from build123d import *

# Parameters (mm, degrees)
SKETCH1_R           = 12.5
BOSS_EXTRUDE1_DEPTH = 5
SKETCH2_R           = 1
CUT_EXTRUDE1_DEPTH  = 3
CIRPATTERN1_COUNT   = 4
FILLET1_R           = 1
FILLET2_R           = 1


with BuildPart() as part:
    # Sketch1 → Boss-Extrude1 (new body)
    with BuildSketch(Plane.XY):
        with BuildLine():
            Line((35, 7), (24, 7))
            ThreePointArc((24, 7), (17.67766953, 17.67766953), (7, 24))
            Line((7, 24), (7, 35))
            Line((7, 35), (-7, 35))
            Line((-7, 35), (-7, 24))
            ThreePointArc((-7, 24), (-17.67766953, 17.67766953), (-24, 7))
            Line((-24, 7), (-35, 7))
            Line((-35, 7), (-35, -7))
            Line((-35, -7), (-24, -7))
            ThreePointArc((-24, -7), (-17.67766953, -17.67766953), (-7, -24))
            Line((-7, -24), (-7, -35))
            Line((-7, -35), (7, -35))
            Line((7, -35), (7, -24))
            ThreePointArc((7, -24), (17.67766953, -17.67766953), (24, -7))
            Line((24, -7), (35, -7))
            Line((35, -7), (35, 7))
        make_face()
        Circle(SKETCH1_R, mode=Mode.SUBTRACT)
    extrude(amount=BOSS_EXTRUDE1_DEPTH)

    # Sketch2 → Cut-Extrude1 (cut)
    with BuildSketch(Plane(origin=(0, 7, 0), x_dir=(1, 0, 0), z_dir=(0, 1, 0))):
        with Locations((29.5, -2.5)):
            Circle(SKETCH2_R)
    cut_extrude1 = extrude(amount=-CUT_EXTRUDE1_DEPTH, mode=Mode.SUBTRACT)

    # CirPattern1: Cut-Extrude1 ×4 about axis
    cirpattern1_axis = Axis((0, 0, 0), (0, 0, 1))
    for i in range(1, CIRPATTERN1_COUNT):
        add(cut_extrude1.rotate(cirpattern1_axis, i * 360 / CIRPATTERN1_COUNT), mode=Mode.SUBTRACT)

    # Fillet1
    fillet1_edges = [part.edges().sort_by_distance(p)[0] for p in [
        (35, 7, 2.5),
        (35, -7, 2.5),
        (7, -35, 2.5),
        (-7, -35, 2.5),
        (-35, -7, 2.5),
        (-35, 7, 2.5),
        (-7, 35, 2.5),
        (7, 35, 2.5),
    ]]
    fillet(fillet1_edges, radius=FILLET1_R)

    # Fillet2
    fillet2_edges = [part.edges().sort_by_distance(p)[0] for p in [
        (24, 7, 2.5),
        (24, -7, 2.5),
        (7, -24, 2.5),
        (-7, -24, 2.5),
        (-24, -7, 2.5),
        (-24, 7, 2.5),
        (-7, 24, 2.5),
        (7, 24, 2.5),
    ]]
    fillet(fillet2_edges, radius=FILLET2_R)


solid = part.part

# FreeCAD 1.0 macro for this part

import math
import FreeCAD as App
import Part
import Sketcher

V = App.Vector
Q = App.Units.Quantity


def edges_at(feature, points):
    """Names of the edges that pass closest to the given points."""
    edges = feature.Shape.Edges
    near = lambda p: min(range(len(edges)), key=lambda i: edges[i].distToShape(Part.Vertex(*p))[0])
    return sorted({f"Edge{near(p) + 1}" for p in points})

doc = App.newDocument("Part")
params = doc.addObject("Spreadsheet::Sheet", "Params")
for row, (alias, value) in enumerate([
    ("sketch1_diameter", "25 mm"),
    ("sketch1_radius", "25 mm"),
    ("sketch1_width", "11 mm"),
    ("sketch1_width2", "14 mm"),
    ("pad1_length", "5 mm"),
    ("sketch2_diameter", "2 mm"),
    ("pocket1_length", "3 mm"),
    ("fillet_radius", "1 mm"),
    ("fillet2_radius", "1 mm"),
], start=1):
    params.set(f"A{row}", alias)
    params.set(f"B{row}", "=" + value)
    params.setAlias(f"B{row}", alias)

body = doc.addObject("PartDesign::Body", "Body")

sketch1 = doc.addObject("Sketcher::SketchObject", "Sketch")
body.addObject(sketch1)
sketch1.AttachmentSupport = (doc.XY_Plane, [""])
sketch1.MapMode = "FlatFace"
sketch1.addGeometry([
    Part.LineSegment(V(35, 7, 0), V(24, 7, 0)),
    Part.ArcOfCircle(Part.Circle(V(0, 0, 0), V(0, 0, 1), 25), math.radians(16), math.radians(74)),
    Part.LineSegment(V(7, 24, 0), V(7, 35, 0)),
    Part.LineSegment(V(7, 35, 0), V(-7, 35, 0)),
    Part.LineSegment(V(-7, 35, 0), V(-7, 24, 0)),
    Part.ArcOfCircle(Part.Circle(V(0, 0, 0), V(0, 0, 1), 25), math.radians(106), math.radians(164)),
    Part.LineSegment(V(-24, 7, 0), V(-35, 7, 0)),
    Part.LineSegment(V(-35, 7, 0), V(-35, -7, 0)),
    Part.LineSegment(V(-35, -7, 0), V(-24, -7, 0)),
    Part.ArcOfCircle(Part.Circle(V(0, 0, 0), V(0, 0, 1), 25), math.radians(-164), math.radians(-106)),
    Part.LineSegment(V(-7, -24, 0), V(-7, -35, 0)),
    Part.LineSegment(V(-7, -35, 0), V(7, -35, 0)),
    Part.LineSegment(V(7, -35, 0), V(7, -24, 0)),
    Part.ArcOfCircle(Part.Circle(V(0, 0, 0), V(0, 0, 1), 25), math.radians(-74), math.radians(-16)),
    Part.LineSegment(V(24, -7, 0), V(35, -7, 0)),
    Part.LineSegment(V(35, -7, 0), V(35, 7, 0)),
    Part.Circle(V(0, 0, 0), V(0, 0, 1), 12),
], False)
sketch1.addConstraint([
    Sketcher.Constraint("Coincident", 0, 2, 1, 1),
    Sketcher.Constraint("Coincident", 1, 2, 2, 1),
    Sketcher.Constraint("Coincident", 2, 2, 3, 1),
    Sketcher.Constraint("Coincident", 3, 2, 4, 1),
    Sketcher.Constraint("Coincident", 4, 2, 5, 1),
    Sketcher.Constraint("Coincident", 5, 2, 6, 1),
    Sketcher.Constraint("Coincident", 6, 2, 7, 1),
    Sketcher.Constraint("Coincident", 7, 2, 8, 1),
    Sketcher.Constraint("Coincident", 8, 2, 9, 1),
    Sketcher.Constraint("Coincident", 9, 2, 10, 1),
    Sketcher.Constraint("Coincident", 10, 2, 11, 1),
    Sketcher.Constraint("Coincident", 11, 2, 12, 1),
    Sketcher.Constraint("Coincident", 12, 2, 13, 1),
    Sketcher.Constraint("Coincident", 13, 2, 14, 1),
    Sketcher.Constraint("Coincident", 14, 2, 15, 1),
    Sketcher.Constraint("Coincident", 15, 2, 0, 1),
    Sketcher.Constraint("Horizontal", 0),
    Sketcher.Constraint("Vertical", 2),
    Sketcher.Constraint("Horizontal", 3),
    Sketcher.Constraint("Vertical", 4),
    Sketcher.Constraint("Horizontal", 6),
    Sketcher.Constraint("Vertical", 7),
    Sketcher.Constraint("Horizontal", 8),
    Sketcher.Constraint("Vertical", 10),
    Sketcher.Constraint("Horizontal", 11),
    Sketcher.Constraint("Vertical", 12),
    Sketcher.Constraint("Horizontal", 14),
    Sketcher.Constraint("Vertical", 15),
    Sketcher.Constraint("Coincident", 1, 3, -1, 1),
    Sketcher.Constraint("Coincident", 5, 3, -1, 1),
    Sketcher.Constraint("Coincident", 9, 3, -1, 1),
    Sketcher.Constraint("Coincident", 13, 3, -1, 1),
    Sketcher.Constraint("Coincident", 16, 3, -1, 1),
    Sketcher.Constraint("Equal", 1, 5),
    Sketcher.Constraint("Equal", 5, 9),
    Sketcher.Constraint("Equal", 9, 13),
    Sketcher.Constraint("Symmetric", 2, 2, 10, 2, -1, 1),
    Sketcher.Constraint("Symmetric", 6, 2, 14, 2, -1, 1),
    Sketcher.Constraint("Horizontal", 1, 2, 4, 2),
    Sketcher.Constraint("Horizontal", 0, 2, 5, 2),
    Sketcher.Constraint("Horizontal", 9, 2, 12, 2),
    Sketcher.Constraint("Horizontal", 8, 2, 13, 2),
    Sketcher.Constraint("Equal", 14, 2),
    Sketcher.Constraint("Equal", 11, 7),
    Sketcher.Constraint("Diameter", 16, Q("25 mm")),
    Sketcher.Constraint("Radius", 1, Q("25 mm")),
    Sketcher.Constraint("DistanceX", 0, 2, 0, 1, Q("11 mm")),
    Sketcher.Constraint("DistanceX", 3, 2, 3, 1, Q("14 mm")),
])
sketch1.setExpression("Constraints[44]", "Params.sketch1_diameter")
sketch1.setExpression("Constraints[45]", "Params.sketch1_radius")
sketch1.setExpression("Constraints[46]", "Params.sketch1_width")
sketch1.setExpression("Constraints[47]", "Params.sketch1_width2")
pad1 = doc.addObject("PartDesign::Pad", "Pad")
body.addObject(pad1)
pad1.Profile = sketch1
pad1.setExpression("Length", "Params.pad1_length")

sketch2 = doc.addObject("Sketcher::SketchObject", "Sketch001")
body.addObject(sketch2)
sketch2.AttachmentSupport = (doc.XZ_Plane, [""])
sketch2.MapMode = "FlatFace"
sketch2.AttachmentOffset = App.Placement(V(0, 0, -7), App.Rotation())
sketch2.addGeometry(Part.Circle(V(29.5, 2.5, 0), V(0, 0, 1), 1), False)
sketch2.addConstraint([
    Sketcher.Constraint("Diameter", 0, Q("2 mm")),
    Sketcher.Constraint("DistanceX", -1, 1, 0, 3, Q("29.5 mm")),
    Sketcher.Constraint("DistanceY", -1, 1, 0, 3, Q("2.5 mm")),
])
sketch2.setExpression("Constraints[0]", "Params.sketch2_diameter")
pocket1 = doc.addObject("PartDesign::Pocket", "Pocket")
body.addObject(pocket1)
pocket1.Profile = sketch2
pocket1.setExpression("Length", "Params.pocket1_length")
pocket1.Reversed = True
doc.recompute()

polarpattern = doc.addObject("PartDesign::PolarPattern", "PolarPattern")
body.addObject(polarpattern)
polarpattern.Originals = [pocket1]
polarpattern.Axis = (doc.Z_Axis, [""])
polarpattern.Angle = 360
polarpattern.Occurrences = 4
body.Tip = polarpattern
doc.recompute()

fillet = doc.addObject("PartDesign::Fillet", "Fillet")
body.addObject(fillet)
fillet.Base = (polarpattern, edges_at(polarpattern, [
    (35, 7, 2.5),
    (35, -7, 2.5),
    (7, -35, 2.5),
    (-7, -35, 2.5),
    (-35, -7, 2.5),
    (-35, 7, 2.5),
    (-7, 35, 2.5),
    (7, 35, 2.5),
]))
fillet.setExpression("Radius", "Params.fillet_radius")
doc.recompute()

fillet2 = doc.addObject("PartDesign::Fillet", "Fillet001")
body.addObject(fillet2)
fillet2.Base = (fillet, edges_at(fillet, [
    (24, 7, 2.5),
    (24, -7, 2.5),
    (7, -24, 2.5),
    (-7, -24, 2.5),
    (-24, -7, 2.5),
    (-24, 7, 2.5),
    (-7, 24, 2.5),
    (7, 24, 2.5),
]))
fillet2.setExpression("Radius", "Params.fillet2_radius")

doc.recompute()
